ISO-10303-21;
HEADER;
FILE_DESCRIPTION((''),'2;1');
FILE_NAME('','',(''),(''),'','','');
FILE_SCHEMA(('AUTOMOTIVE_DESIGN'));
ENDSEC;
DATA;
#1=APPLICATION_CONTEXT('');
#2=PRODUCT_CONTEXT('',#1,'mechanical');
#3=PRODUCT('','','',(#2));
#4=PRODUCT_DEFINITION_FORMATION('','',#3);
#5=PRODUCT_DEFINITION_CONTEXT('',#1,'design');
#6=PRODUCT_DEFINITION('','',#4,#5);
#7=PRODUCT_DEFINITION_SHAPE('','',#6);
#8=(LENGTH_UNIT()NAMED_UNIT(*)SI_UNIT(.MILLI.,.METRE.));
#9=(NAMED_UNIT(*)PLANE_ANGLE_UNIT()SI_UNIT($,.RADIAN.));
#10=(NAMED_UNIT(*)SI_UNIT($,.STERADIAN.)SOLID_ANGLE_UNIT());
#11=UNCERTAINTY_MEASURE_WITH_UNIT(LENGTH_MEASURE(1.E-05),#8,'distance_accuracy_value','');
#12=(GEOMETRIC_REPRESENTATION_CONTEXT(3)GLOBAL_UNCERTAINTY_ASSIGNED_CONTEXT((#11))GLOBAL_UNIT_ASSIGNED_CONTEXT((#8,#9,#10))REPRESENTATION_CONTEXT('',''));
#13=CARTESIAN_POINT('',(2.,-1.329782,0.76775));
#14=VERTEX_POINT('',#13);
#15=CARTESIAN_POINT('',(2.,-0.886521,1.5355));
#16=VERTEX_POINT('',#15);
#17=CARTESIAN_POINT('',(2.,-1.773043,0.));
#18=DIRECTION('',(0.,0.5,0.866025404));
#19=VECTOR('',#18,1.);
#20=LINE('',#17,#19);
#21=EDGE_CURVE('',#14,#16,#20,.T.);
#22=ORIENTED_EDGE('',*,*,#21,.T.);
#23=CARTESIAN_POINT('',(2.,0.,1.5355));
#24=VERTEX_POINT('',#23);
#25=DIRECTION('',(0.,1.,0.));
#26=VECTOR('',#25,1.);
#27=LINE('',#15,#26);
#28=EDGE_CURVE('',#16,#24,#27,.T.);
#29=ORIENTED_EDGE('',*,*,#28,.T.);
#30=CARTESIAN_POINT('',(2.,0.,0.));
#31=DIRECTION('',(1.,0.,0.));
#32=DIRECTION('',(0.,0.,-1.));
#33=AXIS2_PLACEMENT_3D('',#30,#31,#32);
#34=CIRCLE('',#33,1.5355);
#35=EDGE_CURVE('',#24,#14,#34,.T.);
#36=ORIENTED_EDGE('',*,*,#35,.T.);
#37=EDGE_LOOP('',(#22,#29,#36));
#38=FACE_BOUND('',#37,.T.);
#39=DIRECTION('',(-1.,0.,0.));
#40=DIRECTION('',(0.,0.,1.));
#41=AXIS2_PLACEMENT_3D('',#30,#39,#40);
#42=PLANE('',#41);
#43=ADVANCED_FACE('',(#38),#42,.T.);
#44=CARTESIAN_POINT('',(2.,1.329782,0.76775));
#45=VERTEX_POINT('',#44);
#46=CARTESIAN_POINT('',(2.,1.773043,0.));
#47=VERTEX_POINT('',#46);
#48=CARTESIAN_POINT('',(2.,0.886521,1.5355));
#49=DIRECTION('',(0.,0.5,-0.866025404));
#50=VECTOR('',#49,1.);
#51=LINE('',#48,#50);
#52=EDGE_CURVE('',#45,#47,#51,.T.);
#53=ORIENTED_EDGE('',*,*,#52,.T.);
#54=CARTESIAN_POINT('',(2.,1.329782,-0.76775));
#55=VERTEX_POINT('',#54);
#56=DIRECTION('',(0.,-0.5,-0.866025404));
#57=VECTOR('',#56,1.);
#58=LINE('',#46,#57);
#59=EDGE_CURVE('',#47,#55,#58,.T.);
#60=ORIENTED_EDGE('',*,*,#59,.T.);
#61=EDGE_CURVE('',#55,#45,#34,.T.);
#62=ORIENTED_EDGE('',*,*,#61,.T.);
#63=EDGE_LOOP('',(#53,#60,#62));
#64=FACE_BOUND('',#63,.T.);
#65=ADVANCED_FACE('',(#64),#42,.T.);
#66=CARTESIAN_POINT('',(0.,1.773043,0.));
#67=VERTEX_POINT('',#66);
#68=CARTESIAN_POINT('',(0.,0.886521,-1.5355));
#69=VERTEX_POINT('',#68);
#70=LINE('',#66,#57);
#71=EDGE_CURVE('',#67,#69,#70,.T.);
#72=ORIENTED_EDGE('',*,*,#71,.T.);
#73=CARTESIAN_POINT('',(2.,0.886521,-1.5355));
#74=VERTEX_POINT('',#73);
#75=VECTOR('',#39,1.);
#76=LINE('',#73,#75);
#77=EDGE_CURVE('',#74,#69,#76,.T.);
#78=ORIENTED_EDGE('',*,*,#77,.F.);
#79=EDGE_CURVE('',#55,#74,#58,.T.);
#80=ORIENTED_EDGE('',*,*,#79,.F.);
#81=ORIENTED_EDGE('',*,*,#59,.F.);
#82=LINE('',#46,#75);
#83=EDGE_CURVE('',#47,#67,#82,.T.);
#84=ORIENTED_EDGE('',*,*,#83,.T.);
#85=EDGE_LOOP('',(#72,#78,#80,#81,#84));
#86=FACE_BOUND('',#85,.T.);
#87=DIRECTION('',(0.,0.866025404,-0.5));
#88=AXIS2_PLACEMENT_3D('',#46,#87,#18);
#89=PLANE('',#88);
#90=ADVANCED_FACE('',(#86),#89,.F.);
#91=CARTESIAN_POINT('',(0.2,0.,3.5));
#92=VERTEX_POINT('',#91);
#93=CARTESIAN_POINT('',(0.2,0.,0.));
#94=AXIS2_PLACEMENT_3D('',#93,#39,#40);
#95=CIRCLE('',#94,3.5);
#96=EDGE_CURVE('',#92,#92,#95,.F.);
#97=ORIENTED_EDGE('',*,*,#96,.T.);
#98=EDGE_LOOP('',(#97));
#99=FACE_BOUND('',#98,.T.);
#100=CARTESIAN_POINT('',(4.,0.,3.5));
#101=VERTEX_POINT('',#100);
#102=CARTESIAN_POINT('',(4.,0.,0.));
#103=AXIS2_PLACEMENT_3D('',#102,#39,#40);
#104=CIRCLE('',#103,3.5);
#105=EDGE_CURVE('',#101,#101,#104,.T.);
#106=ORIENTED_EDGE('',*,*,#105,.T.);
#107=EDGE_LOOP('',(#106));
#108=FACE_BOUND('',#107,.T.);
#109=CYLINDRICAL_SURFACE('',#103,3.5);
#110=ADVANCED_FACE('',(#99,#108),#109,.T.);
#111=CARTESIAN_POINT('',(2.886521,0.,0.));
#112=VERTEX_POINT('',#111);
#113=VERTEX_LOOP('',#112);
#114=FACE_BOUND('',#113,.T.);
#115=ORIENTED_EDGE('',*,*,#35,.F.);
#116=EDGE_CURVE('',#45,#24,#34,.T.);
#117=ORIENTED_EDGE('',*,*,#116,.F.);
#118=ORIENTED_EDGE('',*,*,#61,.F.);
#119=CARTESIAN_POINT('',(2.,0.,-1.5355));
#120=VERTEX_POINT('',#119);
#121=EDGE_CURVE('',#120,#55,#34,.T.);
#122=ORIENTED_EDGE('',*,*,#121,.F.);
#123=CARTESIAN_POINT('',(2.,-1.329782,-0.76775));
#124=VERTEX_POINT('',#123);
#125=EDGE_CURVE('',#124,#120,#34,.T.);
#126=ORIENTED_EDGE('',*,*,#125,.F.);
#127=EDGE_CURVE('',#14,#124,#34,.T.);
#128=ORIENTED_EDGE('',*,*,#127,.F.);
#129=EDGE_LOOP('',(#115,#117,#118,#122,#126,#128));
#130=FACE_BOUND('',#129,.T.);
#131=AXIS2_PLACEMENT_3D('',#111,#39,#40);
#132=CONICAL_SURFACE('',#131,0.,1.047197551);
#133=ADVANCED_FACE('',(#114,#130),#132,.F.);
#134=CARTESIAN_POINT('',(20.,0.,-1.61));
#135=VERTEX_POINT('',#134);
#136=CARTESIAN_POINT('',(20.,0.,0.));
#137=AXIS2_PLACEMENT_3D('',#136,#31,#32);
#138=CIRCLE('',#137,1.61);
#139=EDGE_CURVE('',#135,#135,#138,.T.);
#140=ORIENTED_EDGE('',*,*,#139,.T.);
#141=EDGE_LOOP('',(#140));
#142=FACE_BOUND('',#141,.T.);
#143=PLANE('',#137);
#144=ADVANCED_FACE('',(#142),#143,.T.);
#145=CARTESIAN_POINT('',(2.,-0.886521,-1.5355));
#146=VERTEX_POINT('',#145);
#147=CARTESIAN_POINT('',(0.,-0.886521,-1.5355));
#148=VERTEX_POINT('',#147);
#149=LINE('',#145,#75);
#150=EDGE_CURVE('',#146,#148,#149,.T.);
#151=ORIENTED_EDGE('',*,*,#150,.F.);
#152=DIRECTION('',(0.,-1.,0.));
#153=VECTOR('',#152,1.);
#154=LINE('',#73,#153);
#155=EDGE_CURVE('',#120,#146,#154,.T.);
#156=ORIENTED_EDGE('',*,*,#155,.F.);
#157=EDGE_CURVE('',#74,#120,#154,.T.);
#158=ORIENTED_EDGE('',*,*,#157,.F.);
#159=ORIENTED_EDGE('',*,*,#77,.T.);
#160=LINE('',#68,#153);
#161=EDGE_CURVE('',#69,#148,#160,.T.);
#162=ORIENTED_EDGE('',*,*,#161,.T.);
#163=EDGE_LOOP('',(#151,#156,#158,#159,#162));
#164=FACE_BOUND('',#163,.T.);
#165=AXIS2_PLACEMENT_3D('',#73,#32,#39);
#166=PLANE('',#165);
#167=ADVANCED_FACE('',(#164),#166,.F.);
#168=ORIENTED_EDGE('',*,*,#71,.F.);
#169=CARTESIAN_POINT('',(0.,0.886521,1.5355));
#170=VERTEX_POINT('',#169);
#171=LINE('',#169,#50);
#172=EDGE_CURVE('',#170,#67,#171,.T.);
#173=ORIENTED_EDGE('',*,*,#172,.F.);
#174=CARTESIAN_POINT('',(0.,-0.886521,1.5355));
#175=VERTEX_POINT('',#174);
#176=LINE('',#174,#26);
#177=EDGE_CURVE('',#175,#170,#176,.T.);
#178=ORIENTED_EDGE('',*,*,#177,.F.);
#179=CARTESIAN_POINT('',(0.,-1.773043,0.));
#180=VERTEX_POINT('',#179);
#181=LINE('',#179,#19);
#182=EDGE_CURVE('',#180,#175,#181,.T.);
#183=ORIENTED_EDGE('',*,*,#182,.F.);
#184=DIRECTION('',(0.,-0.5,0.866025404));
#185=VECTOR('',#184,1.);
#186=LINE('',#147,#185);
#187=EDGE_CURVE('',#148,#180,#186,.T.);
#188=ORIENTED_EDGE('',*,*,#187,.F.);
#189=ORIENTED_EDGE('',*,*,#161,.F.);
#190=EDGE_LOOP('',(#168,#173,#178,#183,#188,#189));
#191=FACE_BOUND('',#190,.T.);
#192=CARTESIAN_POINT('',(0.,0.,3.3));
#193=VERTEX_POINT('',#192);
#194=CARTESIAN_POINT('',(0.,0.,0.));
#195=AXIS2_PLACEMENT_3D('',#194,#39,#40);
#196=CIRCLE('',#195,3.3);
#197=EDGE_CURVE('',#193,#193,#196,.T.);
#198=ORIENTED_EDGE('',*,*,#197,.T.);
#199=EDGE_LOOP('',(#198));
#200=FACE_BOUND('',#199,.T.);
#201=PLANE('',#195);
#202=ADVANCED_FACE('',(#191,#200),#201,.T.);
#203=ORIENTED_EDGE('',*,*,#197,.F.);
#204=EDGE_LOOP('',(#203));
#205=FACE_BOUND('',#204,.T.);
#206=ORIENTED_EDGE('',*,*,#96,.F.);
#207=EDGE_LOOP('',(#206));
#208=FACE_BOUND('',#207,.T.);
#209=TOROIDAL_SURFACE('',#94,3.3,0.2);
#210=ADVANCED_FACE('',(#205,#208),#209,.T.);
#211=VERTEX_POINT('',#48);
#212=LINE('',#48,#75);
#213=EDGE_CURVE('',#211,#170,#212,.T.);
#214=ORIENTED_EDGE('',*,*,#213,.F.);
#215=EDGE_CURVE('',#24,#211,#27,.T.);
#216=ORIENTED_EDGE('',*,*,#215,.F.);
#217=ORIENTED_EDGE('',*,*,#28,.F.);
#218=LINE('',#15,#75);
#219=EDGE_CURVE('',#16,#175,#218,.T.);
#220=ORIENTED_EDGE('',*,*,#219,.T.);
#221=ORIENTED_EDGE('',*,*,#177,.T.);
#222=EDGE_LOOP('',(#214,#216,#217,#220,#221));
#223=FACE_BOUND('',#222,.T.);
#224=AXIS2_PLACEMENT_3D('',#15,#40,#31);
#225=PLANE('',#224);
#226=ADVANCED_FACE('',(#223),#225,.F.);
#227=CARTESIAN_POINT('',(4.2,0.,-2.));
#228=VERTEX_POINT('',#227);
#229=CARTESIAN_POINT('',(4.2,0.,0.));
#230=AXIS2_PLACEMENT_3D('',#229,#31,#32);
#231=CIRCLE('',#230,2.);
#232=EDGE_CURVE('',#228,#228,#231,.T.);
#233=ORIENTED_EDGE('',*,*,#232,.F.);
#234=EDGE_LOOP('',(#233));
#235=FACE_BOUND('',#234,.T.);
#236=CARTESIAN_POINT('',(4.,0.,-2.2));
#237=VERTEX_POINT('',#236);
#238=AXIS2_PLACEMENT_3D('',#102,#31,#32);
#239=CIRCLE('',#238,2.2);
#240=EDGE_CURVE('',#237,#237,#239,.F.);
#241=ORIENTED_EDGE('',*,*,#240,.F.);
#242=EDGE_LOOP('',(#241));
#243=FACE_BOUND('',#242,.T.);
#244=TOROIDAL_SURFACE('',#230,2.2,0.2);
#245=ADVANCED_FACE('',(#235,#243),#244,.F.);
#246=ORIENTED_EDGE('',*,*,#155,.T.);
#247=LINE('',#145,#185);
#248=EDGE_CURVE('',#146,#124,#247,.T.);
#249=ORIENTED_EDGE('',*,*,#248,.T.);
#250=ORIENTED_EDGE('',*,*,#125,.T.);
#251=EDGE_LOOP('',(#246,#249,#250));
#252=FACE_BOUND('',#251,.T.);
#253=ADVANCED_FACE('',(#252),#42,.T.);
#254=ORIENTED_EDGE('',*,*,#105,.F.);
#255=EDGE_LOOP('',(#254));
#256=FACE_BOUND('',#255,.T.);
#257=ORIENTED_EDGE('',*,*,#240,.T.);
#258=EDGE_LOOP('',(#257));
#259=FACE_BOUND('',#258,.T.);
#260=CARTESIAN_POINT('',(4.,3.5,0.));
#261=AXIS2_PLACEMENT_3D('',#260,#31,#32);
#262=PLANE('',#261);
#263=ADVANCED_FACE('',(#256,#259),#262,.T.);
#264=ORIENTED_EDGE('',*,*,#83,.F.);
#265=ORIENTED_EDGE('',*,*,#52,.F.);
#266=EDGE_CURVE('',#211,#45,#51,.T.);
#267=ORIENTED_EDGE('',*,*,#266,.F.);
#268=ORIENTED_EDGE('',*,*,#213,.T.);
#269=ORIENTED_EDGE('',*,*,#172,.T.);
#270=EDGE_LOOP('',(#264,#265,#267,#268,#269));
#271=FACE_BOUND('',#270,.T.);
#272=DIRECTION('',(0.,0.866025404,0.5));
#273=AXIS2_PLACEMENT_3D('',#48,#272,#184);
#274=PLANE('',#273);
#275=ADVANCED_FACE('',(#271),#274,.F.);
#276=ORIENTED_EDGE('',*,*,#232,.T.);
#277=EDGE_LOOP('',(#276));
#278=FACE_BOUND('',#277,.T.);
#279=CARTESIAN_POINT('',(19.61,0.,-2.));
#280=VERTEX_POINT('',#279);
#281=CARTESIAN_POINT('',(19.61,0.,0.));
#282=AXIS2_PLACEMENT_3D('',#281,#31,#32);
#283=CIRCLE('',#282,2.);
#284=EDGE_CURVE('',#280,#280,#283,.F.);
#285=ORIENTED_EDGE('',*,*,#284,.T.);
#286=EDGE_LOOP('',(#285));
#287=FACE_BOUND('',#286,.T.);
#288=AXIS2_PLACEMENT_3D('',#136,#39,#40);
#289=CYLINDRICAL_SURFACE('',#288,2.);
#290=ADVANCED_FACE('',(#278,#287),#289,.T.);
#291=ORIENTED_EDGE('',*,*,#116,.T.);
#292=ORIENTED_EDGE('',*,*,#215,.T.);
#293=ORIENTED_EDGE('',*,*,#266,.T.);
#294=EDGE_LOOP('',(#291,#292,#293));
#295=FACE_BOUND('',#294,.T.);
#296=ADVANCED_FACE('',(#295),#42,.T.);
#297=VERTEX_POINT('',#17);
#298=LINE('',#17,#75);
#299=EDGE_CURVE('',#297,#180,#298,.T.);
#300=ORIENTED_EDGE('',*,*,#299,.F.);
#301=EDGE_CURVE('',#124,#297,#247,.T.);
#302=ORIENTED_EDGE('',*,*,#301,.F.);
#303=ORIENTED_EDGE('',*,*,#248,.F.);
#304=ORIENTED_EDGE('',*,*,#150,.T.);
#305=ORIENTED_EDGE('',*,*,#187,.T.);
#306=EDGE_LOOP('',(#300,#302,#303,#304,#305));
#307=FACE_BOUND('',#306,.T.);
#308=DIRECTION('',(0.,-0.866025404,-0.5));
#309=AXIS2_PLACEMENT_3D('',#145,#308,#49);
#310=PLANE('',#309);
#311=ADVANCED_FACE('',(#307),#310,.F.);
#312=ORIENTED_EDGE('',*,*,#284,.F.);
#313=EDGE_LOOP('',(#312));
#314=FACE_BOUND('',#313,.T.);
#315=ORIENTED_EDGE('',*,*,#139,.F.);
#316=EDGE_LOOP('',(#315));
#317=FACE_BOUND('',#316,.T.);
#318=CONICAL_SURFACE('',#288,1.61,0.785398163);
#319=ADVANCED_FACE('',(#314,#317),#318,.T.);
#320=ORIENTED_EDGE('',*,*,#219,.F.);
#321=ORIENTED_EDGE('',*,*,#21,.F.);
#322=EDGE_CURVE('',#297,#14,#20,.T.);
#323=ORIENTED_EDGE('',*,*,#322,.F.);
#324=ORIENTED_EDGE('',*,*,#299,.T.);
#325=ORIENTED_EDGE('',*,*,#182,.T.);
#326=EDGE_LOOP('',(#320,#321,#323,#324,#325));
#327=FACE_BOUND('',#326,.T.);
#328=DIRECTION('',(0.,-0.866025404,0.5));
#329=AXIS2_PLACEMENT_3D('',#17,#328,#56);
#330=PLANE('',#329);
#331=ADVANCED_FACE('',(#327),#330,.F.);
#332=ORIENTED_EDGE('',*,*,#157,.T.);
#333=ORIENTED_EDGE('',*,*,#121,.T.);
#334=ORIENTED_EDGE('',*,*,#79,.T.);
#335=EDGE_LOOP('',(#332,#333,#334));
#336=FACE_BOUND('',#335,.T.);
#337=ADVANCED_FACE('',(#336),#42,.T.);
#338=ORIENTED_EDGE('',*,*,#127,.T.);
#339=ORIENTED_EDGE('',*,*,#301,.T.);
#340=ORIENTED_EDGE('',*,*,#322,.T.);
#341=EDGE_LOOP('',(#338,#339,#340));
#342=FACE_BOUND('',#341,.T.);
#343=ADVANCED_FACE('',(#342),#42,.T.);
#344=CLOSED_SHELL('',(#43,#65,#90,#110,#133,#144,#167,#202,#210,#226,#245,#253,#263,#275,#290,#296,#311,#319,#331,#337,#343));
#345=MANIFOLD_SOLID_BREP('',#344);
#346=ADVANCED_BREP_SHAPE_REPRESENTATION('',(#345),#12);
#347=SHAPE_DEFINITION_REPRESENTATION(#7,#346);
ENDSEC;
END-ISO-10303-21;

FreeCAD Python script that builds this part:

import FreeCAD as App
import Part
import Sketcher
Q = App.Units.Quantity


def edges_at(feature, points):
    """Names of the edges that pass closest to the given points."""
    edges = feature.Shape.Edges
    near = lambda p: min(range(len(edges)), key=lambda i: edges[i].distToShape(Part.Vertex(*p))[0])
    return sorted({f"Edge{near(p) + 1}" for p in points})

doc = App.newDocument("Part")
body = doc.addObject("PartDesign::Body", "Body")

# Sketch on XY plane
sketch1 = body.newObject("Sketcher::SketchObject", "Sketch")
sketch1.AttachmentSupport = (doc.getObject("XY_Plane"), [""])
sketch1.MapMode = "FlatFace"
sketch1.addGeometry([
    Part.LineSegment(App.Vector(4, 3.5, 0), App.Vector(4, 0, 0)),
    Part.LineSegment(App.Vector(4, 0, 0), App.Vector(0, 0, 0)),
    Part.LineSegment(App.Vector(0, 0, 0), App.Vector(0, 3.5, 0)),
    Part.LineSegment(App.Vector(0, 3.5, 0), App.Vector(4, 3.5, 0)),
], False)
sketch1.addConstraint([
    Sketcher.Constraint("Coincident", 0, 2, 1, 1),
    Sketcher.Constraint("Coincident", 1, 2, 2, 1),
    Sketcher.Constraint("Coincident", 2, 2, 3, 1),
    Sketcher.Constraint("Coincident", 3, 2, 0, 1),
    Sketcher.Constraint("Vertical", 0),
    Sketcher.Constraint("Horizontal", 1),
    Sketcher.Constraint("Vertical", 2),
    Sketcher.Constraint("Horizontal", 3),
    Sketcher.Constraint("Coincident", 1, 2, -1, 1),
    Sketcher.Constraint("DistanceX", 1, 2, 1, 1, 4.0),
    Sketcher.Constraint("DistanceY", 0, 2, 0, 1, 3.5),
])
revolution = body.newObject("PartDesign::Revolution", "Revolution")
revolution.Profile = sketch1
revolution.ReferenceAxis = (sketch1, ["H_Axis"])
revolution.Angle = 360

# Sketch on YZ plane
sketch2 = body.newObject("Sketcher::SketchObject", "Sketch001")
sketch2.AttachmentSupport = (doc.getObject("YZ_Plane"), [""])
sketch2.MapMode = "FlatFace"
sketch2.AttachmentOffset = App.Placement(App.Vector(0, 0, 4), App.Rotation())
sketch2.addGeometry(Part.Circle(App.Vector(0, 0, 0), App.Vector(0, 0, 1), 2), False)
sketch2.addConstraint([
    Sketcher.Constraint("Coincident", 0, 3, -1, 1),
    Sketcher.Constraint("Diameter", 0, 4.0),
])
pad1 = body.newObject("PartDesign::Pad", "Pad")
pad1.Profile = sketch2
pad1.Length = 16

# Sketch on YZ plane
sketch3 = body.newObject("Sketcher::SketchObject", "Sketch002")
sketch3.AttachmentSupport = (doc.getObject("YZ_Plane"), [""])
sketch3.MapMode = "FlatFace"
sketch3.addGeometry([
    Part.LineSegment(App.Vector(-1.773043, 0, 0), App.Vector(-0.886521, 1.5355, 0)),  # 0
    Part.LineSegment(App.Vector(-0.886521, 1.5355, 0), App.Vector(0.886521, 1.5355, 0)),  # 1
    Part.LineSegment(App.Vector(0.886521, 1.5355, 0), App.Vector(1.773043, 0, 0)),  # 2
    Part.LineSegment(App.Vector(1.773043, 0, 0), App.Vector(0.886521, -1.5355, 0)),  # 3
    Part.LineSegment(App.Vector(0.886521, -1.5355, 0), App.Vector(-0.886521, -1.5355, 0)),  # 4
    Part.LineSegment(App.Vector(-0.886521, -1.5355, 0), App.Vector(-1.773043, 0, 0)),  # 5
], False)
sketch3.addConstraint([
    Sketcher.Constraint("Coincident", 0, 2, 1, 1),
    Sketcher.Constraint("Coincident", 1, 2, 2, 1),
    Sketcher.Constraint("Coincident", 2, 2, 3, 1),
    Sketcher.Constraint("Coincident", 3, 2, 4, 1),
    Sketcher.Constraint("Coincident", 4, 2, 5, 1),
    Sketcher.Constraint("Coincident", 5, 2, 0, 1),
    Sketcher.Constraint("Horizontal", 1),
    Sketcher.Constraint("Horizontal", 4),
    Sketcher.Constraint("Symmetric", 0, 2, 3, 2, -1, 1),
    Sketcher.Constraint("Symmetric", 2, 2, 5, 2, -1, 1),
    Sketcher.Constraint("PointOnObject", 2, 2, -1),
    Sketcher.Constraint("Parallel", 2, 5),
    Sketcher.Constraint("Vertical", 1, 2, 3, 2),
    Sketcher.Constraint("Angle", 0, Q("60 deg")),
    Sketcher.Constraint("DistanceY", 3, 2, 1, 2, 3.071),
    Sketcher.Constraint("DistanceX", 1, 1, 1, 2, 1.773043),
])
pocket1 = body.newObject("PartDesign::Pocket", "Pocket")
pocket1.Profile = sketch3
pocket1.Length = 2
pocket1.Reversed = True

# Sketch on XY plane
sketch4 = body.newObject("Sketcher::SketchObject", "Sketch003")
sketch4.AttachmentSupport = (doc.getObject("XY_Plane"), [""])
sketch4.MapMode = "FlatFace"
sketch4.addGeometry([
    Part.LineSegment(App.Vector(2, 1.5355, 0), App.Vector(2, 0, 0)),
    Part.LineSegment(App.Vector(2, 0, 0), App.Vector(2.886521, 0, 0)),
    Part.LineSegment(App.Vector(2.886521, 0, 0), App.Vector(2, 1.5355, 0)),
], False)
sketch4.addConstraint([
    Sketcher.Constraint("Coincident", 0, 2, 1, 1),
    Sketcher.Constraint("Coincident", 1, 2, 2, 1),
    Sketcher.Constraint("Coincident", 2, 2, 0, 1),
    Sketcher.Constraint("Vertical", 0),
    Sketcher.Constraint("Horizontal", 1),
    Sketcher.Constraint("PointOnObject", 0, 2, -1),
    Sketcher.Constraint("Angle", 2, Q("120 deg")),
    Sketcher.Constraint("DistanceX", -1, 1, 0, 2, 2.0),
    Sketcher.Constraint("DistanceY", 0, 2, 0, 1, 1.5355),
])
groove = body.newObject("PartDesign::Groove", "Groove")
groove.Profile = sketch4
groove.ReferenceAxis = (sketch4, ["H_Axis"])
groove.Angle = 360
doc.recompute()

chamfer = body.newObject("PartDesign::Chamfer", "Chamfer")
chamfer.Base = (groove, edges_at(groove, [(20, 0, 2)]))
chamfer.Size = 0.39
doc.recompute()

fillet = body.newObject("PartDesign::Fillet", "Fillet")
fillet.Base = (chamfer, edges_at(chamfer, [(0, -3.5, 0), (4, 0, 2)]))
fillet.Radius = 0.2

doc.recompute()
